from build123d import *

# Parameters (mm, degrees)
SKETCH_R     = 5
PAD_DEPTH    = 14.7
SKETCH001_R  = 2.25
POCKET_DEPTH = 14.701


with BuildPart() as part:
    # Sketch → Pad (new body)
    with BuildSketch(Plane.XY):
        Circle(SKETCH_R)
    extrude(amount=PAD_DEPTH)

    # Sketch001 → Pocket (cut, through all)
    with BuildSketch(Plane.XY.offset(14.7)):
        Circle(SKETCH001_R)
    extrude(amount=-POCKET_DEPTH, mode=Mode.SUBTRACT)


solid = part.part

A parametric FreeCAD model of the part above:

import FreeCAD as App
import Part
import Sketcher
from FreeCAD import Vector
Q = App.Units.Quantity

doc = App.newDocument("Part")
body = doc.addObject("PartDesign::Body", "Body")

sketch1 = body.newObject("Sketcher::SketchObject", "Sketch")
sketch1.AttachmentSupport = (doc.getObject("XY_Plane"), [""])
sketch1.MapMode = "FlatFace"
sketch1.addGeometry(Part.Circle(Vector(0, 0, 0), Vector(0, 0, 1), 5), False)
sketch1.addConstraint([
    Sketcher.Constraint("Coincident", 0, 3, -1, 1),
    Sketcher.Constraint("Diameter", 0, Q("10 mm")),
])
pad1 = body.newObject("PartDesign::Pad", "Pad")
pad1.Profile = sketch1
pad1.Length = 14.7

sketch2 = body.newObject("Sketcher::SketchObject", "Sketch001")
sketch2.AttachmentSupport = (doc.getObject("XY_Plane"), [""])
sketch2.MapMode = "FlatFace"
sketch2.AttachmentOffset = App.Placement(Vector(0, 0, 14.7), App.Rotation())
sketch2.addGeometry(Part.Circle(Vector(0, 0, 0), Vector(0, 0, 1), 2.2), False)
sketch2.addConstraint([
    Sketcher.Constraint("Coincident", 0, 3, -1, 1),
    Sketcher.Constraint("Diameter", 0, Q("4.5 mm")),
])
pocket1 = body.newObject("PartDesign::Pocket", "Pocket")
pocket1.Profile = sketch2
pocket1.Type = "ThroughAll"

doc.recompute()
